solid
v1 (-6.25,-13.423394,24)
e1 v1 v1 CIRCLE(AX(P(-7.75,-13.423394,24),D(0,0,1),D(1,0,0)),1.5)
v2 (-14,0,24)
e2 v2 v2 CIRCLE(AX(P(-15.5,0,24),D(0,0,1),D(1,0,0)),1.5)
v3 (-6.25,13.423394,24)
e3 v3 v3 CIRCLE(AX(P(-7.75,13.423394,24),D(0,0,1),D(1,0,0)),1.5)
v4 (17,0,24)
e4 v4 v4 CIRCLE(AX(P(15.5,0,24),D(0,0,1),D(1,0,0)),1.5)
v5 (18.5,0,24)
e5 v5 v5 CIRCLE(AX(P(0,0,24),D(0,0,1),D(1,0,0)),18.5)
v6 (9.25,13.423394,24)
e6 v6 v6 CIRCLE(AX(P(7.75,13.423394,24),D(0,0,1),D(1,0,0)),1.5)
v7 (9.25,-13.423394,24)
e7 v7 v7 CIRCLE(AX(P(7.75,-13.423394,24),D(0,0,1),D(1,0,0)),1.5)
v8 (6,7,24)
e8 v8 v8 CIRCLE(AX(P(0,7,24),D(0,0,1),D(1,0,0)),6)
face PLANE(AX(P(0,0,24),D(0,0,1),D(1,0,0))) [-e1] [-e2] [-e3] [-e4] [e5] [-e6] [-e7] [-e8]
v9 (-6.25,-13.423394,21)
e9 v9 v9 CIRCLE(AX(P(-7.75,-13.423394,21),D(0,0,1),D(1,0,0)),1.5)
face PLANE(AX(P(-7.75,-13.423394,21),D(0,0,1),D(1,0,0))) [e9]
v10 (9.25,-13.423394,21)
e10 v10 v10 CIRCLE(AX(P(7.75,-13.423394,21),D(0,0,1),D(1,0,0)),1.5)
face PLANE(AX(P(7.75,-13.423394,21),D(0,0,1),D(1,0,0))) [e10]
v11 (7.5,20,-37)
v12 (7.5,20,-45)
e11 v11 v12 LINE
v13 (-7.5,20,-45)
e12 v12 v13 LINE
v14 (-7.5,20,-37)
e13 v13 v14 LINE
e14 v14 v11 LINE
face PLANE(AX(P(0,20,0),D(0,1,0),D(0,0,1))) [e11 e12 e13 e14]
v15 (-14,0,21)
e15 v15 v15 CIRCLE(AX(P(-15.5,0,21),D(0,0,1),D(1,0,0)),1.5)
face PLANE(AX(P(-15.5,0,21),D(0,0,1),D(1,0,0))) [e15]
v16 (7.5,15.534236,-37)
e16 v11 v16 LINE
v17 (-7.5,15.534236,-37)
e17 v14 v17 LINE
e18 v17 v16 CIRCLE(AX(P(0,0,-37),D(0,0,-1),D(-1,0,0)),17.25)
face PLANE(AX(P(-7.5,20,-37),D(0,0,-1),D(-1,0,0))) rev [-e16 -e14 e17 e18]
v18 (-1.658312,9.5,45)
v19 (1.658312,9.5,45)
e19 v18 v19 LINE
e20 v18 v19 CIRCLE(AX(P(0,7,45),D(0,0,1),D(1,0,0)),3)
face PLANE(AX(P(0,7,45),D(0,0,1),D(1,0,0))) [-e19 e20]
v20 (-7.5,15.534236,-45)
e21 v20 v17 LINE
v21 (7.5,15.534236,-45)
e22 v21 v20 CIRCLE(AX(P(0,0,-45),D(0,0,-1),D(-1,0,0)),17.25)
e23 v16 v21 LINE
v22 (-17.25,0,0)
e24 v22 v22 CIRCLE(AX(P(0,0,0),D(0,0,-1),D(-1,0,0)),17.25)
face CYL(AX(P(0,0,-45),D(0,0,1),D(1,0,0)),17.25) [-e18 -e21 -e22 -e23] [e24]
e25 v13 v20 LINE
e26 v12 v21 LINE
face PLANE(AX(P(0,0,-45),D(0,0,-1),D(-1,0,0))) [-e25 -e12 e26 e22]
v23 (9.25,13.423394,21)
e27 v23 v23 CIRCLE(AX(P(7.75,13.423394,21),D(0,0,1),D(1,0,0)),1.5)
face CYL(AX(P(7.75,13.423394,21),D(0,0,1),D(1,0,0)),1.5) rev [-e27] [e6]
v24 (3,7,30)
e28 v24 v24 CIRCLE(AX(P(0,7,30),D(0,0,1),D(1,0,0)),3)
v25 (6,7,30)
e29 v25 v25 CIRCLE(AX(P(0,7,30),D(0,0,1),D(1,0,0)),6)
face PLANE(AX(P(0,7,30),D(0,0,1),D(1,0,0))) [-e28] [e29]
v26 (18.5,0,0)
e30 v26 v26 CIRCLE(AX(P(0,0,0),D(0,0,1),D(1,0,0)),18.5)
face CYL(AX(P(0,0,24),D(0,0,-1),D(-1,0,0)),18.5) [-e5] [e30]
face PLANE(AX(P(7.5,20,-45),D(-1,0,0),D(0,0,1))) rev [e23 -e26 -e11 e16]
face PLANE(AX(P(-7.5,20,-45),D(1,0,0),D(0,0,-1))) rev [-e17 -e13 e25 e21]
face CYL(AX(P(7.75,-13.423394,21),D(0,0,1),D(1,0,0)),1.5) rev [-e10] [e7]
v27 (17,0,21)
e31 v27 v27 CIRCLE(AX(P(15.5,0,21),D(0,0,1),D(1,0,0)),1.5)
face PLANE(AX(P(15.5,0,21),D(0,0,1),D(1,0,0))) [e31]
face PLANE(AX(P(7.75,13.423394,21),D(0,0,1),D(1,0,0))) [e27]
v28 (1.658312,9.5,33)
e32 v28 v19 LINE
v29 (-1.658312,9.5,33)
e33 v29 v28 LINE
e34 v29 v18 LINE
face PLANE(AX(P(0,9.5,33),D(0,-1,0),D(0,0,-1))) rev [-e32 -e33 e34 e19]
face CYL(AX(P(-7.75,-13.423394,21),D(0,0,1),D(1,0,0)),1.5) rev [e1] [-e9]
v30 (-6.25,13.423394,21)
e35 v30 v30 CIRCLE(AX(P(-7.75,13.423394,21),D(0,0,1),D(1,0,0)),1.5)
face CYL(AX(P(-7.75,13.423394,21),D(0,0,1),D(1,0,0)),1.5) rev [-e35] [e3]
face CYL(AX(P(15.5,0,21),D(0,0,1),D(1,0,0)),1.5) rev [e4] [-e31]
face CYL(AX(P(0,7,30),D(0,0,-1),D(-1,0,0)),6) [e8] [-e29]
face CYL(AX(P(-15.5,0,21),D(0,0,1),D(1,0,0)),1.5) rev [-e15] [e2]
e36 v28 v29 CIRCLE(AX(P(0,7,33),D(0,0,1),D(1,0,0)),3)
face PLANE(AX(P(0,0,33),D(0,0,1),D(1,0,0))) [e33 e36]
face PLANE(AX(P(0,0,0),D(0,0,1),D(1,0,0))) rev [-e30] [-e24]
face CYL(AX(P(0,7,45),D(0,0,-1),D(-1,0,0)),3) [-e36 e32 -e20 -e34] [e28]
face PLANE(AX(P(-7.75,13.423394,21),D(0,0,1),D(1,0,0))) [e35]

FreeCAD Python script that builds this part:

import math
import FreeCAD as App
import Part
import Sketcher
Q = App.Units.Quantity

doc = App.newDocument("Part")
body = doc.addObject("PartDesign::Body", "Body")

# Sketch on XY plane
sketch1 = body.newObject("Sketcher::SketchObject", "Sketch")
sketch1.AttachmentSupport = (doc.getObject("XY_Plane"), [""])
sketch1.MapMode = "FlatFace"
sketch1.addGeometry(Part.Circle(App.Vector(0, 0, 0), App.Vector(0, 0, 1), 18), False)
sketch1.addConstraint(Sketcher.Constraint("Coincident", 0, 3, -1, 1))
sketch1.addConstraint(Sketcher.Constraint("Diameter", 0, Q("37 mm")))
pad1 = body.newObject("PartDesign::Pad", "Pad")
pad1.Profile = sketch1
pad1.Length = 24

# Sketch on XY plane
sketch2 = body.newObject("Sketcher::SketchObject", "Sketch001")
sketch2.AttachmentSupport = (doc.getObject("XY_Plane"), [""])
sketch2.MapMode = "FlatFace"
sketch2.addGeometry(Part.Circle(App.Vector(0, 0, 0), App.Vector(0, 0, 1), 17), False)
sketch2.addConstraint(Sketcher.Constraint("Coincident", 0, 3, -1, 1))
sketch2.addConstraint(Sketcher.Constraint("Diameter", 0, Q("34.5 mm")))
pad2 = body.newObject("PartDesign::Pad", "Pad001")
pad2.Profile = sketch2
pad2.Length = 45
pad2.Reversed = True

# Sketch on XY plane
sketch3 = body.newObject("Sketcher::SketchObject", "Sketch002")
sketch3.AttachmentSupport = (doc.getObject("XY_Plane"), [""])
sketch3.MapMode = "FlatFace"
sketch3.AttachmentOffset = App.Placement(App.Vector(0, 0, 24), App.Rotation())
sketch3.addGeometry(Part.Circle(App.Vector(0, 7, 0), App.Vector(0, 0, 1), 6), False)
sketch3.addConstraint(Sketcher.Constraint("PointOnObject", 0, 3, -2))
sketch3.addConstraint(Sketcher.Constraint("Diameter", 0, Q("12 mm")))
sketch3.addConstraint(Sketcher.Constraint("DistanceY", -1, 1, 0, 3, Q("7 mm")))
pad3 = body.newObject("PartDesign::Pad", "Pad002")
pad3.Profile = sketch3
pad3.Length = 6

# Sketch on XY plane
sketch4 = body.newObject("Sketcher::SketchObject", "Sketch003")
sketch4.AttachmentSupport = (doc.getObject("XY_Plane"), [""])
sketch4.MapMode = "FlatFace"
sketch4.AttachmentOffset = App.Placement(App.Vector(0, 0, 30), App.Rotation())
sketch4.addGeometry(Part.Circle(App.Vector(0, 7, 0), App.Vector(0, 0, 1), 3), False)
sketch4.addConstraint(Sketcher.Constraint("PointOnObject", 0, 3, -2))
sketch4.addConstraint(Sketcher.Constraint("Diameter", 0, Q("6 mm")))
sketch4.addConstraint(Sketcher.Constraint("DistanceY", -1, 1, 0, 3, Q("7 mm")))
pad4 = body.newObject("PartDesign::Pad", "Pad003")
pad4.Profile = sketch4
pad4.Length = 15

# Sketch on XY plane
sketch5 = body.newObject("Sketcher::SketchObject", "Sketch004")
sketch5.AttachmentSupport = (doc.getObject("XY_Plane"), [""])
sketch5.MapMode = "FlatFace"
sketch5.AttachmentOffset = App.Placement(App.Vector(0, 0, 33), App.Rotation())
sketch5.addGeometry(Part.ArcOfCircle(Part.Circle(App.Vector(0, 7, 0), App.Vector(0, 0, 1), 3), math.radians(56), math.radians(124)), False)
sketch5.addGeometry(Part.LineSegment(App.Vector(-1.7, 9.5, 0), App.Vector(1.7, 9.5, 0)), False)
sketch5.addConstraint(Sketcher.Constraint("Coincident", 0, 1, 1, 2))
sketch5.addConstraint(Sketcher.Constraint("Coincident", 1, 1, 0, 2))
sketch5.addConstraint(Sketcher.Constraint("Horizontal", 1))
sketch5.addConstraint(Sketcher.Constraint("PointOnObject", 0, 3, -2))
sketch5.addConstraint(Sketcher.Constraint("Radius", 0, Q("3 mm")))
sketch5.addConstraint(Sketcher.Constraint("DistanceY", -1, 1, 0, 3, Q("7 mm")))
sketch5.addConstraint(Sketcher.Constraint("DistanceY", -1, 1, 0, 1, Q("9.5 mm")))
pocket1 = body.newObject("PartDesign::Pocket", "Pocket")
pocket1.Profile = sketch5
pocket1.Length = 12
pocket1.Reversed = True

# Sketch on XY plane
sketch6 = body.newObject("Sketcher::SketchObject", "Sketch005")
sketch6.AttachmentSupport = (doc.getObject("XY_Plane"), [""])
sketch6.MapMode = "FlatFace"
sketch6.AttachmentOffset = App.Placement(App.Vector(0, 0, 24), App.Rotation())
sketch6.addGeometry(Part.Circle(App.Vector(7.8, 13.4, 0), App.Vector(0, 0, 1), 1.5), False)
sketch6.addGeometry(Part.Circle(App.Vector(15.5, 0, 0), App.Vector(0, 0, 1), 1.5), False)
sketch6.addGeometry(Part.Circle(App.Vector(7.8, -13.4, 0), App.Vector(0, 0, 1), 1.5), False)
sketch6.addGeometry(Part.Circle(App.Vector(-7.8, -13.4, 0), App.Vector(0, 0, 1), 1.5), False)
sketch6.addGeometry(Part.Circle(App.Vector(-15.5, 0, 0), App.Vector(0, 0, 1), 1.5), False)
sketch6.addGeometry(Part.Circle(App.Vector(-7.8, 13.4, 0), App.Vector(0, 0, 1), 1.5), False)
sketch6.addConstraint(Sketcher.Constraint("Equal", 0, 1))
sketch6.addConstraint(Sketcher.Constraint("Equal", 1, 2))
sketch6.addConstraint(Sketcher.Constraint("Equal", 2, 3))
sketch6.addConstraint(Sketcher.Constraint("Equal", 3, 4))
sketch6.addConstraint(Sketcher.Constraint("Equal", 4, 5))
sketch6.addConstraint(Sketcher.Constraint("Symmetric", 0, 3, 3, 3, -1, 1))
sketch6.addConstraint(Sketcher.Constraint("Symmetric", 1, 3, 4, 3, -1, 1))
sketch6.addConstraint(Sketcher.Constraint("Symmetric", 2, 3, 5, 3, -1, 1))
sketch6.addConstraint(Sketcher.Constraint("Symmetric", 2, 3, 3, 3, -2))
sketch6.addConstraint(Sketcher.Constraint("PointOnObject", 1, 3, -1))
sketch6.addConstraint(Sketcher.Constraint("Diameter", 0, Q("3 mm")))
sketch6.addConstraint(Sketcher.Constraint("DistanceX", 4, 3, 1, 3, Q("31 mm")))
sketch6.addConstraint(Sketcher.Constraint("DistanceX", 3, 3, 2, 3, Q("15.5 mm")))
sketch6.addConstraint(Sketcher.Constraint("DistanceY", -1, 1, 0, 3, Q("13.423394 mm")))
pocket2 = body.newObject("PartDesign::Pocket", "Pocket001")
pocket2.Profile = sketch6
pocket2.Length = 3

# Sketch on XZ plane
sketch7 = body.newObject("Sketcher::SketchObject", "Sketch006")
sketch7.AttachmentSupport = (doc.getObject("XZ_Plane"), [""])
sketch7.MapMode = "FlatFace"
sketch7.addGeometry(Part.LineSegment(App.Vector(-8, -45, 0), App.Vector(-8, -37, 0)), False)
sketch7.addGeometry(Part.LineSegment(App.Vector(-8, -37, 0), App.Vector(8, -37, 0)), False)
sketch7.addGeometry(Part.LineSegment(App.Vector(8, -37, 0), App.Vector(8, -45, 0)), False)
sketch7.addGeometry(Part.LineSegment(App.Vector(8, -45, 0), App.Vector(-8, -45, 0)), False)
sketch7.addConstraint(Sketcher.Constraint("Coincident", 0, 2, 1, 1))
sketch7.addConstraint(Sketcher.Constraint("Coincident", 1, 2, 2, 1))
sketch7.addConstraint(Sketcher.Constraint("Coincident", 2, 2, 3, 1))
sketch7.addConstraint(Sketcher.Constraint("Coincident", 3, 2, 0, 1))
sketch7.addConstraint(Sketcher.Constraint("Vertical", 0))
sketch7.addConstraint(Sketcher.Constraint("Horizontal", 1))
sketch7.addConstraint(Sketcher.Constraint("Vertical", 2))
sketch7.addConstraint(Sketcher.Constraint("Horizontal", 3))
sketch7.addConstraint(Sketcher.Constraint("DistanceX", 1, 1, 1, 2, Q("15 mm")))
sketch7.addConstraint(Sketcher.Constraint("DistanceY", 0, 1, 0, 2, Q("8 mm")))
sketch7.addConstraint(Sketcher.Constraint("DistanceY", 0, 2, -1, 1, Q("37 mm")))
sketch7.addConstraint(Sketcher.Constraint("DistanceX", 0, 2, -1, 1, Q("7.5 mm")))
pad5 = body.newObject("PartDesign::Pad", "Pad004")
pad5.Profile = sketch7
pad5.Length = 20
pad5.Reversed = True

doc.recompute()
